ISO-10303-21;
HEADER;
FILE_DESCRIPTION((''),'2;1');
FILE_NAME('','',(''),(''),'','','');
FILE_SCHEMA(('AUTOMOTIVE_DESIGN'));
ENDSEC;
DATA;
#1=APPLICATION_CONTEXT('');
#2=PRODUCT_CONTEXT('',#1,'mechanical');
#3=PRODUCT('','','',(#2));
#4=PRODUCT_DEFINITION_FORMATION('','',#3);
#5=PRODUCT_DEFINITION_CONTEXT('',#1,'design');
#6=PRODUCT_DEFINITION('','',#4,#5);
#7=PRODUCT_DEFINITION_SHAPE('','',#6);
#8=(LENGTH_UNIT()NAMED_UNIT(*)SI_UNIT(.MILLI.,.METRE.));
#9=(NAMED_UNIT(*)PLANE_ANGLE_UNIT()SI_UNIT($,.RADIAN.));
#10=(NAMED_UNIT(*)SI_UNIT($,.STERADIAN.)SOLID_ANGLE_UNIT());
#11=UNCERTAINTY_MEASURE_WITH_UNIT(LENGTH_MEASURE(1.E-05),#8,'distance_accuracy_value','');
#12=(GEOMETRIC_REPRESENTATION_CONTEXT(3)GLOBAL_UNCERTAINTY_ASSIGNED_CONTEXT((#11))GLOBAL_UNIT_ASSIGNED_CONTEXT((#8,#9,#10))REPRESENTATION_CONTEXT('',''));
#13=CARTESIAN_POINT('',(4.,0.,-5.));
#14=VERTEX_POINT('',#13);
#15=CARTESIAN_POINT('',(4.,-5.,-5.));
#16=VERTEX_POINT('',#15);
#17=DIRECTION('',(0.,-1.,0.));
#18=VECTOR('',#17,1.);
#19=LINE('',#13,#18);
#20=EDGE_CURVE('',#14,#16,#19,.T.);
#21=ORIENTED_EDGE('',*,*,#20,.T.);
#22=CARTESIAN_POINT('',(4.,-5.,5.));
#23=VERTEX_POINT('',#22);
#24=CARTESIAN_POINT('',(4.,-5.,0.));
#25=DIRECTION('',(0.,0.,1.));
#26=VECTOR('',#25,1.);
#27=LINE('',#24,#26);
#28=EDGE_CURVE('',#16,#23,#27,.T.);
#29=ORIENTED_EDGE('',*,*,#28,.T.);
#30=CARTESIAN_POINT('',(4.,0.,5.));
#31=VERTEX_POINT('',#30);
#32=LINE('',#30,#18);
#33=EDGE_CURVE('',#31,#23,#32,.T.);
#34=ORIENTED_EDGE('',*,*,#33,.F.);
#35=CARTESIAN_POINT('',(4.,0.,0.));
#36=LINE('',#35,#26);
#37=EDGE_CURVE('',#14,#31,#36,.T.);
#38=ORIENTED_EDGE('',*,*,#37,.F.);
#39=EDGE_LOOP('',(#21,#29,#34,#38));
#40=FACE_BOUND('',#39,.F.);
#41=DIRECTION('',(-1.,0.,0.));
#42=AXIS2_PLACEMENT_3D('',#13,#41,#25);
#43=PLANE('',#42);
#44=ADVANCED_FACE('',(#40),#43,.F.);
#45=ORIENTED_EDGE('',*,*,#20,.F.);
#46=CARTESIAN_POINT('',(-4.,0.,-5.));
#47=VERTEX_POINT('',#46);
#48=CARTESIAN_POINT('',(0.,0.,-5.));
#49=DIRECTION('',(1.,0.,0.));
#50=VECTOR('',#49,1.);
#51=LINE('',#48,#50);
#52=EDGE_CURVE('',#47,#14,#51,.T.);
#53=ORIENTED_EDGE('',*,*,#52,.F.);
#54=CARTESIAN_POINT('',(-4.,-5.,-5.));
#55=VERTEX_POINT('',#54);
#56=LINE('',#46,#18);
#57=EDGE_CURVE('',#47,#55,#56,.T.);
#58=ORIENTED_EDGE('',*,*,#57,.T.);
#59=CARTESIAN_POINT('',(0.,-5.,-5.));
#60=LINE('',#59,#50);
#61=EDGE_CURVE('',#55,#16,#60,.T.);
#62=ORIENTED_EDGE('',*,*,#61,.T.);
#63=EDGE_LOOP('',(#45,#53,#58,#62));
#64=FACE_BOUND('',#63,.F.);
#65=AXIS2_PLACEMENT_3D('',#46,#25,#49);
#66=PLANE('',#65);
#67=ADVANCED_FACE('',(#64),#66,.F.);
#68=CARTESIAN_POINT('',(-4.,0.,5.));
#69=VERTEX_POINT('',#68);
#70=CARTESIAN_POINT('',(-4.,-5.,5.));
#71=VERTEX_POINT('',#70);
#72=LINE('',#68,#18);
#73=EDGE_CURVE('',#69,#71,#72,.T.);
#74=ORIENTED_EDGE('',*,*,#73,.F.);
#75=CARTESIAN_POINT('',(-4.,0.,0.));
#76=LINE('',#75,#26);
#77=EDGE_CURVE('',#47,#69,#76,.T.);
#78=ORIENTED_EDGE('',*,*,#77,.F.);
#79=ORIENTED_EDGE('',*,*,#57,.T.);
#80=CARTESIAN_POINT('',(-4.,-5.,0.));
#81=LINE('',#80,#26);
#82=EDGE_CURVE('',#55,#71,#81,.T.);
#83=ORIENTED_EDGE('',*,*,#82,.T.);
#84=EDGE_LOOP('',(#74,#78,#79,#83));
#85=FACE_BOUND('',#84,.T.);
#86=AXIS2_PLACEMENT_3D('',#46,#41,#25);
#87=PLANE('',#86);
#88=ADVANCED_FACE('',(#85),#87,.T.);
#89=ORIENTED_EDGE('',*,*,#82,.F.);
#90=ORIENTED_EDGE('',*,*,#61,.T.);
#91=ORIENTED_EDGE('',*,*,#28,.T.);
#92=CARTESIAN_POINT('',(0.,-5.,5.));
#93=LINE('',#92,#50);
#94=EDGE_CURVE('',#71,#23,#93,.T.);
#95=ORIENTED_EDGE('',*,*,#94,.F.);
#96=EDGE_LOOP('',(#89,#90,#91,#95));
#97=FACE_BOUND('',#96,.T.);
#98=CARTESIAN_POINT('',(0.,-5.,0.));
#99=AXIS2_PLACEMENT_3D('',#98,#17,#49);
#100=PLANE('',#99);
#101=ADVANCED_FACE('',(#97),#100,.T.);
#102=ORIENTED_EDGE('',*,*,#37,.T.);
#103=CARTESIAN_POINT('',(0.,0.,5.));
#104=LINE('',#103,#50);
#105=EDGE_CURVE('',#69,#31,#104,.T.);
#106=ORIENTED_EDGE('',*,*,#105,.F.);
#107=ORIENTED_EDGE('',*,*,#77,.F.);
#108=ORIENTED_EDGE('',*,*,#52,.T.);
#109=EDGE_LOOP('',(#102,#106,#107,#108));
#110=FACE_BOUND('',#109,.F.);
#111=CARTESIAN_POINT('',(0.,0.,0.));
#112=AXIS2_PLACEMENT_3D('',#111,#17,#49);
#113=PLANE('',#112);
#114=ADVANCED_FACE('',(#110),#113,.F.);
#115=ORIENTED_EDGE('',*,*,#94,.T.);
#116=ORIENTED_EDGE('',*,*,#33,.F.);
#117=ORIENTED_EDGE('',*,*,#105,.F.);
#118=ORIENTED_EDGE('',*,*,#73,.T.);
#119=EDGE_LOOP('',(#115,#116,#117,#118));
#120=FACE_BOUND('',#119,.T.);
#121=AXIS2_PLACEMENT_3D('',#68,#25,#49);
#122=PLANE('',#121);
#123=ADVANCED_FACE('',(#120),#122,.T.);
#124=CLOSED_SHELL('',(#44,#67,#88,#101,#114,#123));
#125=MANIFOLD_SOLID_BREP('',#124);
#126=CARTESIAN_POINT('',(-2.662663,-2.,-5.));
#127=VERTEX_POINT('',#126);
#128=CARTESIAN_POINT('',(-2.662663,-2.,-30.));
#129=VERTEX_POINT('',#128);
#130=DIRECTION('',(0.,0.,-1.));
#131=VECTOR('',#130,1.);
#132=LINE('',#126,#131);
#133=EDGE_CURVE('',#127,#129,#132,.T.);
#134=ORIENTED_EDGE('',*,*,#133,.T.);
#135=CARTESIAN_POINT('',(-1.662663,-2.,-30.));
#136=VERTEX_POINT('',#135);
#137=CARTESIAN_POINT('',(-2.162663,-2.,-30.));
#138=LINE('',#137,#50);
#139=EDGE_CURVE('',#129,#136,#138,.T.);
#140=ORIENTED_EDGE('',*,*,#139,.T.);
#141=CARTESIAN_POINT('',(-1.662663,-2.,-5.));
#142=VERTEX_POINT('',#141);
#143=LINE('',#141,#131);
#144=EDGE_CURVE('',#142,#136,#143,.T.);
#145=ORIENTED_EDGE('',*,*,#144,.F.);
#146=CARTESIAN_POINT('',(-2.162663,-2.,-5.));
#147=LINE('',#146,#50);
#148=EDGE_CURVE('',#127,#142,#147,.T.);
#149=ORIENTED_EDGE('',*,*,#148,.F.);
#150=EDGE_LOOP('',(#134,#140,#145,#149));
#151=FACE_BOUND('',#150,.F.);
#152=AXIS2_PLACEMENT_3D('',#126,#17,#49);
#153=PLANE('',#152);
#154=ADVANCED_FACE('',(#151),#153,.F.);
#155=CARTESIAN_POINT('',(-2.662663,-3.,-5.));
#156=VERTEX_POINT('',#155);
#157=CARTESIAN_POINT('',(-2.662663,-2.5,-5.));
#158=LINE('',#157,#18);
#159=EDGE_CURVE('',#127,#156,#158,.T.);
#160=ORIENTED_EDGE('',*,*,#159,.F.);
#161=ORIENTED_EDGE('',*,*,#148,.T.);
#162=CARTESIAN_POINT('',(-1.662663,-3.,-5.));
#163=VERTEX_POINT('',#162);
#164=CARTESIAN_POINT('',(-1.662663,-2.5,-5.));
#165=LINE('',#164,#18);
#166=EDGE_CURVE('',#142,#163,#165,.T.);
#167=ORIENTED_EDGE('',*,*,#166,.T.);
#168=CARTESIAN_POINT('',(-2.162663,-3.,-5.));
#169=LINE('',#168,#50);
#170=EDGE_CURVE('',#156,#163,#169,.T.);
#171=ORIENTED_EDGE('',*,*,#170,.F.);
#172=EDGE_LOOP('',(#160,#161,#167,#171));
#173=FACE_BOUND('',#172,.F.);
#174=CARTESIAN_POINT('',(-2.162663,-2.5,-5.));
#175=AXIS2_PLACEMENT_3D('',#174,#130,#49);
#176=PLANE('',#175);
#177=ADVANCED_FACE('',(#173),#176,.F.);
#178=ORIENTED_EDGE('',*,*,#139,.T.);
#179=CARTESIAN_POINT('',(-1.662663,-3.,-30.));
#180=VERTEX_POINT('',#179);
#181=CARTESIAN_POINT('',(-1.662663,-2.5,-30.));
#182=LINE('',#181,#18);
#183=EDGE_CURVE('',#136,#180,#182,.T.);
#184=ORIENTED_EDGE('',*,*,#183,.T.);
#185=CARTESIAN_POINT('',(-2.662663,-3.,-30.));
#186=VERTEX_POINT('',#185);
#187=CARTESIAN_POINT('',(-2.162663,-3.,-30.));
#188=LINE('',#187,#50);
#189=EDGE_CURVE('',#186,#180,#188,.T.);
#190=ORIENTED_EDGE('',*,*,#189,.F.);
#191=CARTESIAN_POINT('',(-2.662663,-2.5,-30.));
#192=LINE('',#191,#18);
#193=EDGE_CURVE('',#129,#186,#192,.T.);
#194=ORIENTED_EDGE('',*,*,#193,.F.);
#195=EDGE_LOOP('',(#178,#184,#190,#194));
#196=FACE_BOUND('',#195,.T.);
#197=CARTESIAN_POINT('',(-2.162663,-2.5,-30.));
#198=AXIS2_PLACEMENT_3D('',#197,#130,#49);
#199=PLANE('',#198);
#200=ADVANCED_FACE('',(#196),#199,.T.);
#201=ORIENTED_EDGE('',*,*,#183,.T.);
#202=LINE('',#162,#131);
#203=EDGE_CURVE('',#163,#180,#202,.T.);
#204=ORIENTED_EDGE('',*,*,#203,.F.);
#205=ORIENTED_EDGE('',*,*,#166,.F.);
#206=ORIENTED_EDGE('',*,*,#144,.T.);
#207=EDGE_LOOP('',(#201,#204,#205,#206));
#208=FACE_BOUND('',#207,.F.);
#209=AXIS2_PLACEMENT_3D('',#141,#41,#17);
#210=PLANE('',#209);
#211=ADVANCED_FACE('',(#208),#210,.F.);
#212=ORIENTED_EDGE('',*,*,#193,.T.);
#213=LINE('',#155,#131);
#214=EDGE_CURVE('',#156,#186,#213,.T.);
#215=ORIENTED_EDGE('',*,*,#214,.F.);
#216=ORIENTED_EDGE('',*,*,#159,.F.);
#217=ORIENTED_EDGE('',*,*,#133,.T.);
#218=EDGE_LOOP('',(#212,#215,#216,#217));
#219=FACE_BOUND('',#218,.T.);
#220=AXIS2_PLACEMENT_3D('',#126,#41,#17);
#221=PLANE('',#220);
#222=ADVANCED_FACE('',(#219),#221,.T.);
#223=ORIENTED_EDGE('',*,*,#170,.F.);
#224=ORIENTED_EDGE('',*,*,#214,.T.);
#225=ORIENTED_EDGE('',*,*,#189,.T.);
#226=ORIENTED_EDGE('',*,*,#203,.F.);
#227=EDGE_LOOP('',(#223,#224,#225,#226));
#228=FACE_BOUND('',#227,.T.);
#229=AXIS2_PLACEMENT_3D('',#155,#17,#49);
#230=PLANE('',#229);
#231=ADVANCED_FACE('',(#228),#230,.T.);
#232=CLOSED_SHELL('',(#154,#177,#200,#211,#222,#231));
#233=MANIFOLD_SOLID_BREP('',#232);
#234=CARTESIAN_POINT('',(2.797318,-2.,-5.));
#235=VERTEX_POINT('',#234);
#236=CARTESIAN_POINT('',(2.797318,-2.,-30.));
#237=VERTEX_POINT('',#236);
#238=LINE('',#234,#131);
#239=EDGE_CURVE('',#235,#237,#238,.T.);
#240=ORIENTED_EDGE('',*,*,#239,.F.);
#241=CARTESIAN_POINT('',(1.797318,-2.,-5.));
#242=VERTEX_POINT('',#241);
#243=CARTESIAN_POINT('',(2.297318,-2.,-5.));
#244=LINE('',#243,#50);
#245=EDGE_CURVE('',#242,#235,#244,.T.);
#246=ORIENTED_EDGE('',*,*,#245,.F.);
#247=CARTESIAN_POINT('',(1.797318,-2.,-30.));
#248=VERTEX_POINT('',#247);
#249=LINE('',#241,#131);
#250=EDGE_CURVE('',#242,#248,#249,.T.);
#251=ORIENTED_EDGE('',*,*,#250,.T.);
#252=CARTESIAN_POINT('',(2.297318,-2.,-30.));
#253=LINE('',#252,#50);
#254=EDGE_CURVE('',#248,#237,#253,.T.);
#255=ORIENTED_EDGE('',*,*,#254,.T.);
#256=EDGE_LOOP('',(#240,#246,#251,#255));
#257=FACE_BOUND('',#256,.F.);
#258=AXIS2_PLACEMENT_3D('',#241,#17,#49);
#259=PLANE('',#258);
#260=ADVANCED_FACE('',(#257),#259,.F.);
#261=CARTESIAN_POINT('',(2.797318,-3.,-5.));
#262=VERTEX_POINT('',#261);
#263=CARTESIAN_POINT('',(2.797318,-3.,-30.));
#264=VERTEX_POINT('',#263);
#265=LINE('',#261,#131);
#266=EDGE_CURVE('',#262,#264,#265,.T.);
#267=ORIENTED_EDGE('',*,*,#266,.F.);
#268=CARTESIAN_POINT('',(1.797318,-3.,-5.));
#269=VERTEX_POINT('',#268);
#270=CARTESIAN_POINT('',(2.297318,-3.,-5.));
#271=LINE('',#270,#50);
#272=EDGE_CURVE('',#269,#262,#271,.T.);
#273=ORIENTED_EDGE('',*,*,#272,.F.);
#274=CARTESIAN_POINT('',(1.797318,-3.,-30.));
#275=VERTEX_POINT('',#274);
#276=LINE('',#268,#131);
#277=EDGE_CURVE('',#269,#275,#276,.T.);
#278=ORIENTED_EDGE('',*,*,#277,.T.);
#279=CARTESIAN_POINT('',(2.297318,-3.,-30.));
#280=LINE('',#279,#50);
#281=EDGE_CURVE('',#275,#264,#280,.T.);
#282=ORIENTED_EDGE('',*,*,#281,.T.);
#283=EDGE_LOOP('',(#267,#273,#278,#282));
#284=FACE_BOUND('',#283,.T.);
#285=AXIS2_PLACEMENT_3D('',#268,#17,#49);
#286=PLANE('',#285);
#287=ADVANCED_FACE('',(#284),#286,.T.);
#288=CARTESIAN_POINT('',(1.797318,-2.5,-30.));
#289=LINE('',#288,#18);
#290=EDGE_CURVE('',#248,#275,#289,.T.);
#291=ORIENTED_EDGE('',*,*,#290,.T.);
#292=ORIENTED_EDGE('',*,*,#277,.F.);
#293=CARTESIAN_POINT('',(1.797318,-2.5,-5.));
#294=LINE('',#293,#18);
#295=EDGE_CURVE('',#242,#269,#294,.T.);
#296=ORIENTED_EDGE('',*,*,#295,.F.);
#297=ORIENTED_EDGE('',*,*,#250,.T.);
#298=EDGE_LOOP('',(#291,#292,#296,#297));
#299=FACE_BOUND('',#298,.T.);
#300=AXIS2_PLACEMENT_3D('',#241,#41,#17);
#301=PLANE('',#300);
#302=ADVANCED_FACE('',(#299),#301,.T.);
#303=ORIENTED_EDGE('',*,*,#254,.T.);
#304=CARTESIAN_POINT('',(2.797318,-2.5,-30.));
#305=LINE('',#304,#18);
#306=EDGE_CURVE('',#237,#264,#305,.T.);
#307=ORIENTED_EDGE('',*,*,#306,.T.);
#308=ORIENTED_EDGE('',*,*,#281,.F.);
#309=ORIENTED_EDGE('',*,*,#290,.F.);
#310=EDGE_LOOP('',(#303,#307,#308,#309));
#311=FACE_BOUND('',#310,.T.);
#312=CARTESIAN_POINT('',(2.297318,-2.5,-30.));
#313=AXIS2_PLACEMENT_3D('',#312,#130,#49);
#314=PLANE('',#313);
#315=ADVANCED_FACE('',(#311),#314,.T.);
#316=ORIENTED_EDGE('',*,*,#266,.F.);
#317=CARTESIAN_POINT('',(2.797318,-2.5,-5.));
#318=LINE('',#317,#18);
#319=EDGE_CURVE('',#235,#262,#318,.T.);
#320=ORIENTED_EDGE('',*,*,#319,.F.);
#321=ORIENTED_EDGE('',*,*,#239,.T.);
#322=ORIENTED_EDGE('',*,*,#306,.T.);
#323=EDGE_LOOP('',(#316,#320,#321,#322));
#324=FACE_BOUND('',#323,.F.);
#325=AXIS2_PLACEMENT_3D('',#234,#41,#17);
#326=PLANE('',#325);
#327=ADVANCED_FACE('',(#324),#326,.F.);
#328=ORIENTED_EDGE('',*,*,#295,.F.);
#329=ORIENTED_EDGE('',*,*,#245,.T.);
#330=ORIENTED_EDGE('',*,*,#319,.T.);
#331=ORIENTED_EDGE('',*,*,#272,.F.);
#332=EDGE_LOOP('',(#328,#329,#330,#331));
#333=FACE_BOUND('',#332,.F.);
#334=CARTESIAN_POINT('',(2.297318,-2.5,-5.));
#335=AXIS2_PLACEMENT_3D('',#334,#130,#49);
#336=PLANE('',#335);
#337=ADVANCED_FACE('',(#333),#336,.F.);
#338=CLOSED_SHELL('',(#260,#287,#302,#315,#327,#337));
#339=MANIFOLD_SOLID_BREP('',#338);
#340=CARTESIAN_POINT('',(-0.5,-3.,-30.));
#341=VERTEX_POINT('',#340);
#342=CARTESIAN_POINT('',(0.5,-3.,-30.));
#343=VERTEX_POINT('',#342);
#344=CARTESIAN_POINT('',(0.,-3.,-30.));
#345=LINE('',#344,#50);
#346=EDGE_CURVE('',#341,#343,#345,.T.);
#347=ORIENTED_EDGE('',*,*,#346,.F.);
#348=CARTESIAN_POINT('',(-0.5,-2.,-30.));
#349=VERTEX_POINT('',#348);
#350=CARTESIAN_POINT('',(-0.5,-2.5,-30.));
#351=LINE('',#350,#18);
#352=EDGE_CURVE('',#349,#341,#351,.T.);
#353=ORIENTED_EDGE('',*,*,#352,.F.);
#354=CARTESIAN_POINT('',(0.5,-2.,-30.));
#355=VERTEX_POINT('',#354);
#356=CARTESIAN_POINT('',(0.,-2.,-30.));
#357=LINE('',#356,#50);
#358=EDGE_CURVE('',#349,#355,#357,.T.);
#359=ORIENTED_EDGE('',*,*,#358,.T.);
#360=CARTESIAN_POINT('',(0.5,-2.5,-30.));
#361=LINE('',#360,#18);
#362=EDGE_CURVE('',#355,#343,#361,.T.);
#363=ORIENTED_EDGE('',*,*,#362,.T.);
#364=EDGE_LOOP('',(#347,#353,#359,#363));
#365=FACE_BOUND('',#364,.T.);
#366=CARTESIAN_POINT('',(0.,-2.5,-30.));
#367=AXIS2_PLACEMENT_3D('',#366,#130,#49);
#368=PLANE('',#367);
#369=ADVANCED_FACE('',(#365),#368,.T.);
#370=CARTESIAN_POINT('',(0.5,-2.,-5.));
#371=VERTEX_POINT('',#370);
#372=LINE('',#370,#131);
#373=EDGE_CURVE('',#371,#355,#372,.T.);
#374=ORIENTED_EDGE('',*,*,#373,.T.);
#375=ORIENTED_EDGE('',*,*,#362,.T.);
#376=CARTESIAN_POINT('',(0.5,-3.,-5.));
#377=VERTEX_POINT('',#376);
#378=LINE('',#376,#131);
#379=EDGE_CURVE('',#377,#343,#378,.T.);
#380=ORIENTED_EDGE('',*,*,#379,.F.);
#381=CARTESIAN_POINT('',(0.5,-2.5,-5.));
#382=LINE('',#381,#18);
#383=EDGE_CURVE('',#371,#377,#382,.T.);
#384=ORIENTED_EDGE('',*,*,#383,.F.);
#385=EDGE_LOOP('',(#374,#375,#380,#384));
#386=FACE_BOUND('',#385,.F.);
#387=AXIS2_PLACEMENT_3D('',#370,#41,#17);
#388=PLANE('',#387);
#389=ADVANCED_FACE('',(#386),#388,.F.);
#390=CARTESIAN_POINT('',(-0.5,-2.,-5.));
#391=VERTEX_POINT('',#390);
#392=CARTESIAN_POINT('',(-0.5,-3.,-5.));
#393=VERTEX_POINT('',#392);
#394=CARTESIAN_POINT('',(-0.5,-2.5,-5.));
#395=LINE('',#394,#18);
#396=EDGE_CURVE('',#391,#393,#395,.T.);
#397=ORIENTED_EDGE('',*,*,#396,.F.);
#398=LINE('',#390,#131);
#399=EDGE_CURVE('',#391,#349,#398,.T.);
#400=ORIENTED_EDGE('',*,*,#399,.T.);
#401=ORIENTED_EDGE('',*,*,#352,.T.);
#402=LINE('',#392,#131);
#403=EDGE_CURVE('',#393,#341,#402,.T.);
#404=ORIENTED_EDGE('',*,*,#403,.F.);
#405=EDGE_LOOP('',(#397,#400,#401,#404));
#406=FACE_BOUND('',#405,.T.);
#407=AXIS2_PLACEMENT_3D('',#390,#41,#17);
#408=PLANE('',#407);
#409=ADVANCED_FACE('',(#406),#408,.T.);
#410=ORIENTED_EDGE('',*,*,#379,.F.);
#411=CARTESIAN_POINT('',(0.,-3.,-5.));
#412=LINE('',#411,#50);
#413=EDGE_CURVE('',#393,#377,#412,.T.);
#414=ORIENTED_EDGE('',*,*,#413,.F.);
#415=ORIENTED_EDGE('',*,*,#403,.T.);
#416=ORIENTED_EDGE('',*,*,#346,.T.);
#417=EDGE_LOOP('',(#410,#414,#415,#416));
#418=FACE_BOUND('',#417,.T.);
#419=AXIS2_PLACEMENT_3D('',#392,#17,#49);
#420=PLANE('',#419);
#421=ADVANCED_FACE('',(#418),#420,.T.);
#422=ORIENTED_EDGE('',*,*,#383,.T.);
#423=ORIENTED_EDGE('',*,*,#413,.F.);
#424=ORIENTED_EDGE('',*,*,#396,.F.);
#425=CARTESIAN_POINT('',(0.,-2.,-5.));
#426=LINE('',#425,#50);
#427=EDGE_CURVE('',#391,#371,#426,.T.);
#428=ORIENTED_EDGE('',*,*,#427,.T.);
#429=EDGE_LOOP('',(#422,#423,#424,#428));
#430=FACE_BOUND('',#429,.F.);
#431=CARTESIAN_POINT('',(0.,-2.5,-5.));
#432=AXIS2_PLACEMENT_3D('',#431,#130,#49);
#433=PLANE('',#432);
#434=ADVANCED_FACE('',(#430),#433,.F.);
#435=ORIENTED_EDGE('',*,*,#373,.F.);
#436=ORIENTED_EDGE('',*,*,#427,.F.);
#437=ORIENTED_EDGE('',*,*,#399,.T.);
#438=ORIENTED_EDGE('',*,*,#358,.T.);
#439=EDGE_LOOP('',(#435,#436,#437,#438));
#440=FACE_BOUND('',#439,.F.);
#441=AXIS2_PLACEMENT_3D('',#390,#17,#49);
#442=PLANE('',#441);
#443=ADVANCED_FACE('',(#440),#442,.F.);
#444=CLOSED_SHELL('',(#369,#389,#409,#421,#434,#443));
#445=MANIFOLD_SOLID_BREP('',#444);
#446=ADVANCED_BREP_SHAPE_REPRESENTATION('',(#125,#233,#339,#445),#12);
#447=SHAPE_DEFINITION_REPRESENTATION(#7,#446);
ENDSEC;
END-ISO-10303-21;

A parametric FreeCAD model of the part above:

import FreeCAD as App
import Part
import Sketcher
Q = App.Units.Quantity


def add_polygon(sketch, points):
    """Adds a closed chain of lines whose ends are joined by coincident constraints."""
    first, n = sketch.GeometryCount, len(points)
    for a, b in zip(points, points[1:] + points[:1]):
        sketch.addGeometry(Part.LineSegment(App.Vector(*a, 0), App.Vector(*b, 0)), False)
    for i in range(n):
        sketch.addConstraint(Sketcher.Constraint("Coincident", first + i, 2, first + (i + 1) % n, 1))

doc = App.newDocument("Part")
body = doc.addObject("PartDesign::Body", "Body")

# Sketch on XZ plane
sketch1 = body.newObject("Sketcher::SketchObject", "Sketch")
sketch1.AttachmentSupport = (doc.getObject("XZ_Plane"), [""])
sketch1.MapMode = "FlatFace"
add_polygon(sketch1, [(-4, 5), (-4, -5), (4, -5), (4, 5)])  # lines 0-3
sketch1.addConstraint(Sketcher.Constraint("Vertical", 0))
sketch1.addConstraint(Sketcher.Constraint("Horizontal", 1))
sketch1.addConstraint(Sketcher.Constraint("Vertical", 2))
sketch1.addConstraint(Sketcher.Constraint("Horizontal", 3))
sketch1.addConstraint(Sketcher.Constraint("Symmetric", 0, 2, 2, 2, -1, 1))
sketch1.addConstraint(Sketcher.Constraint("DistanceX", 1, 1, 1, 2, Q("8 mm")))
sketch1.addConstraint(Sketcher.Constraint("DistanceY", 0, 2, 0, 1, Q("10 mm")))
pad1 = body.newObject("PartDesign::Pad", "Pad")
pad1.Profile = sketch1
pad1.Length = 5
body2 = doc.addObject("PartDesign::Body", "Body001")
body2.AllowCompound = True

# Sketch on XY plane
sketch2 = body2.newObject("Sketcher::SketchObject", "Sketch001")
sketch2.AttachmentSupport = (doc.getObject("XY_Plane001"), [""])
sketch2.MapMode = "FlatFace"
sketch2.AttachmentOffset = App.Placement(App.Vector(0, 0, -5), App.Rotation())
add_polygon(sketch2, [(-0.5, -3), (-0.5, -2), (0.5, -2), (0.5, -3)])  # lines 0-3
add_polygon(sketch2, [(1.8, -3), (1.8, -2), (2.8, -2), (2.8, -3)])  # lines 4-7
add_polygon(sketch2, [(-2.7, -3), (-2.7, -2), (-1.7, -2), (-1.7, -3)])  # lines 8-11
sketch2.addConstraint(Sketcher.Constraint("Vertical", 0))
sketch2.addConstraint(Sketcher.Constraint("Horizontal", 1))
sketch2.addConstraint(Sketcher.Constraint("Vertical", 2))
sketch2.addConstraint(Sketcher.Constraint("Horizontal", 3))
sketch2.addConstraint(Sketcher.Constraint("Vertical", 4))
sketch2.addConstraint(Sketcher.Constraint("Horizontal", 5))
sketch2.addConstraint(Sketcher.Constraint("Vertical", 6))
sketch2.addConstraint(Sketcher.Constraint("Horizontal", 7))
sketch2.addConstraint(Sketcher.Constraint("Vertical", 8))
sketch2.addConstraint(Sketcher.Constraint("Horizontal", 9))
sketch2.addConstraint(Sketcher.Constraint("Vertical", 10))
sketch2.addConstraint(Sketcher.Constraint("Horizontal", 11))
sketch2.addConstraint(Sketcher.Constraint("Horizontal", 1, 2, 4, 2))
sketch2.addConstraint(Sketcher.Constraint("Horizontal", 3, 2, 6, 2))
sketch2.addConstraint(Sketcher.Constraint("Horizontal", 5, 2, 8, 2))
sketch2.addConstraint(Sketcher.Constraint("Horizontal", 7, 2, 10, 2))
sketch2.addConstraint(Sketcher.Constraint("Equal", 3, 5))
sketch2.addConstraint(Sketcher.Constraint("Equal", 7, 9))
sketch2.addConstraint(Sketcher.Constraint("Equal", 11, 0))
sketch2.addConstraint(Sketcher.Constraint("DistanceX", 1, 1, 1, 2, Q("1 mm")))
sketch2.addConstraint(Sketcher.Constraint("DistanceY", 0, 2, -1, 1, Q("2 mm")))
sketch2.addConstraint(Sketcher.Constraint("DistanceX", 0, 2, -1, 1, Q("0.5 mm")))
sketch2.addConstraint(Sketcher.Constraint("DistanceX", -1, 1, 5, 2, Q("2.797318 mm")))
sketch2.addConstraint(Sketcher.Constraint("DistanceX", 8, 2, 4, 2, Q("4.459981 mm")))
pad2 = body2.newObject("PartDesign::Pad", "Pad001")
pad2.Profile = sketch2
pad2.Length = 25
pad2.Reversed = True

doc.recompute()
